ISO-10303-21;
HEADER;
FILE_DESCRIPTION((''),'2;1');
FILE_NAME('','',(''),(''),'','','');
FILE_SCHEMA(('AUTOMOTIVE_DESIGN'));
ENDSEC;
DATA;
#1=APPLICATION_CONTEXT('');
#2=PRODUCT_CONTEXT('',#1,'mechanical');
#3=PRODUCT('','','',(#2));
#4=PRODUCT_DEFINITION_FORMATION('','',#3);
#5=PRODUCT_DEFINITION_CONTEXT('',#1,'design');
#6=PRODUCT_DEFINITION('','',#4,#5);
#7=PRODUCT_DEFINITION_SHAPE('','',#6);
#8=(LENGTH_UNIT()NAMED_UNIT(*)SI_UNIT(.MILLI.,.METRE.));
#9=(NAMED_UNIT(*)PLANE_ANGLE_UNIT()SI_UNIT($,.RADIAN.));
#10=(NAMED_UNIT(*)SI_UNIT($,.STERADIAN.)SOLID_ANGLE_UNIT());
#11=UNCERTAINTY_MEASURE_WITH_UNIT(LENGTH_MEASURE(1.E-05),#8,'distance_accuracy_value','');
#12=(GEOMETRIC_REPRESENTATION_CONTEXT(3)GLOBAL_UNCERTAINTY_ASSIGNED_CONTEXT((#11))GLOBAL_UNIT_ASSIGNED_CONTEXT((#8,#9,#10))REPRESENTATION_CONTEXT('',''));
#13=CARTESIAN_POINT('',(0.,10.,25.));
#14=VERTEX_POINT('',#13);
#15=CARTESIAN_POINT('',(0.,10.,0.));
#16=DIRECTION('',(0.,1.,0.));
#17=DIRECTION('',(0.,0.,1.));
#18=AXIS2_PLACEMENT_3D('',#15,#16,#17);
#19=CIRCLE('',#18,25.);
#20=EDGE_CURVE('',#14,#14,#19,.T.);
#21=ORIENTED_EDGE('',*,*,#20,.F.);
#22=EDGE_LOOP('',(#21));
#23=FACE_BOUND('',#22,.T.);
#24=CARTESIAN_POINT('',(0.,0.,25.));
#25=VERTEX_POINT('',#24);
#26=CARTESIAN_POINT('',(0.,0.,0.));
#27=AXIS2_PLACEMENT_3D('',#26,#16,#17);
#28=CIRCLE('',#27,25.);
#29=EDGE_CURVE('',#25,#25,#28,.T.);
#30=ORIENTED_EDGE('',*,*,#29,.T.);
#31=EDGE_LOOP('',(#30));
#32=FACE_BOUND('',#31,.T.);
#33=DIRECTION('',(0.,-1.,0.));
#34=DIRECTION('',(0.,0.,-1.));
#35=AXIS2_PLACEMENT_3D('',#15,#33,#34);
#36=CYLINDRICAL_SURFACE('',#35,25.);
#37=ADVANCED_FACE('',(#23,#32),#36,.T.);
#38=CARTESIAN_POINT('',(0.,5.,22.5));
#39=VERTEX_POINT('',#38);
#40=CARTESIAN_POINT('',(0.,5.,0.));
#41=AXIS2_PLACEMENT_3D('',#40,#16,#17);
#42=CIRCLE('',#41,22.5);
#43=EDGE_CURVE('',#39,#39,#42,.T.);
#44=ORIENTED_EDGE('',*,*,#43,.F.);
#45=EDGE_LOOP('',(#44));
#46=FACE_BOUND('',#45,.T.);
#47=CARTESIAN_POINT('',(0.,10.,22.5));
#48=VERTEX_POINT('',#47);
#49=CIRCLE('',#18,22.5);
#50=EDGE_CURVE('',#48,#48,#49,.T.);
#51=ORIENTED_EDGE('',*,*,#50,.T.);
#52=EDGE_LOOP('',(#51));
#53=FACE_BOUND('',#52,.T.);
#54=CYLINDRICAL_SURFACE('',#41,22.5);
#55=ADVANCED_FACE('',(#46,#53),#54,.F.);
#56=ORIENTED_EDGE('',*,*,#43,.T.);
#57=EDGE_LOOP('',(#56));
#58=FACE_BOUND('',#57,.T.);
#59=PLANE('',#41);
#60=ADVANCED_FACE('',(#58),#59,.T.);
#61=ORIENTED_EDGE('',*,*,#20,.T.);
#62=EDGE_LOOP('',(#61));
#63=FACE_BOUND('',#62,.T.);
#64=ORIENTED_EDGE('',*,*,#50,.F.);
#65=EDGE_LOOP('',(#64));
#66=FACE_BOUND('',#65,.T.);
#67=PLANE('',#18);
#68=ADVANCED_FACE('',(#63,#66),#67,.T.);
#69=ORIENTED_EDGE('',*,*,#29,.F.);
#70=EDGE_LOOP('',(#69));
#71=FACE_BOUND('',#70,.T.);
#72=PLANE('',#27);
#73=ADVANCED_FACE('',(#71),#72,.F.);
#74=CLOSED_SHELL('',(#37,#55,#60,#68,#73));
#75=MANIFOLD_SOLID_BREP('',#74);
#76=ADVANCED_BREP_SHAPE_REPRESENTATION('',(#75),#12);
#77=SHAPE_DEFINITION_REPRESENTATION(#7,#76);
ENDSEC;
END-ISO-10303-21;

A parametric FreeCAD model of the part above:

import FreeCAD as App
import Part
import Sketcher

V = App.Vector
Q = App.Units.Quantity

doc = App.newDocument("Part")
params = doc.addObject("Spreadsheet::Sheet", "Params")
for row, (alias, value) in enumerate([
    ("sketch1_diameter", "50 mm"),
    ("pad1_length", "10 mm"),
    ("sketch2_diameter", "45 mm"),
    ("pocket1_length", "5 mm"),
], start=1):
    params.set(f"A{row}", alias)
    params.set(f"B{row}", "=" + value)
    params.setAlias(f"B{row}", alias)

body = doc.addObject("PartDesign::Body", "Body")

sketch1 = doc.addObject("Sketcher::SketchObject", "Sketch")
body.addObject(sketch1)
sketch1.AttachmentSupport = (doc.XZ_Plane, [""])
sketch1.MapMode = "FlatFace"
sketch1.addGeometry(Part.Circle(V(0, 0, 0), V(0, 0, 1), 25), False)
sketch1.addConstraint([
    Sketcher.Constraint("Coincident", 0, 3, -1, 1),
    Sketcher.Constraint("Diameter", 0, Q("50 mm")),
])
sketch1.setExpression("Constraints[1]", "Params.sketch1_diameter")
pad1 = doc.addObject("PartDesign::Pad", "Pad")
body.addObject(pad1)
pad1.Profile = sketch1
pad1.setExpression("Length", "Params.pad1_length")
pad1.Reversed = True

sketch2 = doc.addObject("Sketcher::SketchObject", "Sketch001")
body.addObject(sketch2)
sketch2.AttachmentSupport = (doc.XZ_Plane, [""])
sketch2.MapMode = "FlatFace"
sketch2.AttachmentOffset = App.Placement(V(0, 0, -10), App.Rotation())
sketch2.addGeometry(Part.Circle(V(0, 0, 0), V(0, 0, 1), 22), False)
sketch2.addConstraint([
    Sketcher.Constraint("Coincident", 0, 3, -1, 1),
    Sketcher.Constraint("Diameter", 0, Q("45 mm")),
])
sketch2.setExpression("Constraints[1]", "Params.sketch2_diameter")
pocket1 = doc.addObject("PartDesign::Pocket", "Pocket")
body.addObject(pocket1)
pocket1.Profile = sketch2
pocket1.setExpression("Length", "Params.pocket1_length")
pocket1.Reversed = True

doc.recompute()
